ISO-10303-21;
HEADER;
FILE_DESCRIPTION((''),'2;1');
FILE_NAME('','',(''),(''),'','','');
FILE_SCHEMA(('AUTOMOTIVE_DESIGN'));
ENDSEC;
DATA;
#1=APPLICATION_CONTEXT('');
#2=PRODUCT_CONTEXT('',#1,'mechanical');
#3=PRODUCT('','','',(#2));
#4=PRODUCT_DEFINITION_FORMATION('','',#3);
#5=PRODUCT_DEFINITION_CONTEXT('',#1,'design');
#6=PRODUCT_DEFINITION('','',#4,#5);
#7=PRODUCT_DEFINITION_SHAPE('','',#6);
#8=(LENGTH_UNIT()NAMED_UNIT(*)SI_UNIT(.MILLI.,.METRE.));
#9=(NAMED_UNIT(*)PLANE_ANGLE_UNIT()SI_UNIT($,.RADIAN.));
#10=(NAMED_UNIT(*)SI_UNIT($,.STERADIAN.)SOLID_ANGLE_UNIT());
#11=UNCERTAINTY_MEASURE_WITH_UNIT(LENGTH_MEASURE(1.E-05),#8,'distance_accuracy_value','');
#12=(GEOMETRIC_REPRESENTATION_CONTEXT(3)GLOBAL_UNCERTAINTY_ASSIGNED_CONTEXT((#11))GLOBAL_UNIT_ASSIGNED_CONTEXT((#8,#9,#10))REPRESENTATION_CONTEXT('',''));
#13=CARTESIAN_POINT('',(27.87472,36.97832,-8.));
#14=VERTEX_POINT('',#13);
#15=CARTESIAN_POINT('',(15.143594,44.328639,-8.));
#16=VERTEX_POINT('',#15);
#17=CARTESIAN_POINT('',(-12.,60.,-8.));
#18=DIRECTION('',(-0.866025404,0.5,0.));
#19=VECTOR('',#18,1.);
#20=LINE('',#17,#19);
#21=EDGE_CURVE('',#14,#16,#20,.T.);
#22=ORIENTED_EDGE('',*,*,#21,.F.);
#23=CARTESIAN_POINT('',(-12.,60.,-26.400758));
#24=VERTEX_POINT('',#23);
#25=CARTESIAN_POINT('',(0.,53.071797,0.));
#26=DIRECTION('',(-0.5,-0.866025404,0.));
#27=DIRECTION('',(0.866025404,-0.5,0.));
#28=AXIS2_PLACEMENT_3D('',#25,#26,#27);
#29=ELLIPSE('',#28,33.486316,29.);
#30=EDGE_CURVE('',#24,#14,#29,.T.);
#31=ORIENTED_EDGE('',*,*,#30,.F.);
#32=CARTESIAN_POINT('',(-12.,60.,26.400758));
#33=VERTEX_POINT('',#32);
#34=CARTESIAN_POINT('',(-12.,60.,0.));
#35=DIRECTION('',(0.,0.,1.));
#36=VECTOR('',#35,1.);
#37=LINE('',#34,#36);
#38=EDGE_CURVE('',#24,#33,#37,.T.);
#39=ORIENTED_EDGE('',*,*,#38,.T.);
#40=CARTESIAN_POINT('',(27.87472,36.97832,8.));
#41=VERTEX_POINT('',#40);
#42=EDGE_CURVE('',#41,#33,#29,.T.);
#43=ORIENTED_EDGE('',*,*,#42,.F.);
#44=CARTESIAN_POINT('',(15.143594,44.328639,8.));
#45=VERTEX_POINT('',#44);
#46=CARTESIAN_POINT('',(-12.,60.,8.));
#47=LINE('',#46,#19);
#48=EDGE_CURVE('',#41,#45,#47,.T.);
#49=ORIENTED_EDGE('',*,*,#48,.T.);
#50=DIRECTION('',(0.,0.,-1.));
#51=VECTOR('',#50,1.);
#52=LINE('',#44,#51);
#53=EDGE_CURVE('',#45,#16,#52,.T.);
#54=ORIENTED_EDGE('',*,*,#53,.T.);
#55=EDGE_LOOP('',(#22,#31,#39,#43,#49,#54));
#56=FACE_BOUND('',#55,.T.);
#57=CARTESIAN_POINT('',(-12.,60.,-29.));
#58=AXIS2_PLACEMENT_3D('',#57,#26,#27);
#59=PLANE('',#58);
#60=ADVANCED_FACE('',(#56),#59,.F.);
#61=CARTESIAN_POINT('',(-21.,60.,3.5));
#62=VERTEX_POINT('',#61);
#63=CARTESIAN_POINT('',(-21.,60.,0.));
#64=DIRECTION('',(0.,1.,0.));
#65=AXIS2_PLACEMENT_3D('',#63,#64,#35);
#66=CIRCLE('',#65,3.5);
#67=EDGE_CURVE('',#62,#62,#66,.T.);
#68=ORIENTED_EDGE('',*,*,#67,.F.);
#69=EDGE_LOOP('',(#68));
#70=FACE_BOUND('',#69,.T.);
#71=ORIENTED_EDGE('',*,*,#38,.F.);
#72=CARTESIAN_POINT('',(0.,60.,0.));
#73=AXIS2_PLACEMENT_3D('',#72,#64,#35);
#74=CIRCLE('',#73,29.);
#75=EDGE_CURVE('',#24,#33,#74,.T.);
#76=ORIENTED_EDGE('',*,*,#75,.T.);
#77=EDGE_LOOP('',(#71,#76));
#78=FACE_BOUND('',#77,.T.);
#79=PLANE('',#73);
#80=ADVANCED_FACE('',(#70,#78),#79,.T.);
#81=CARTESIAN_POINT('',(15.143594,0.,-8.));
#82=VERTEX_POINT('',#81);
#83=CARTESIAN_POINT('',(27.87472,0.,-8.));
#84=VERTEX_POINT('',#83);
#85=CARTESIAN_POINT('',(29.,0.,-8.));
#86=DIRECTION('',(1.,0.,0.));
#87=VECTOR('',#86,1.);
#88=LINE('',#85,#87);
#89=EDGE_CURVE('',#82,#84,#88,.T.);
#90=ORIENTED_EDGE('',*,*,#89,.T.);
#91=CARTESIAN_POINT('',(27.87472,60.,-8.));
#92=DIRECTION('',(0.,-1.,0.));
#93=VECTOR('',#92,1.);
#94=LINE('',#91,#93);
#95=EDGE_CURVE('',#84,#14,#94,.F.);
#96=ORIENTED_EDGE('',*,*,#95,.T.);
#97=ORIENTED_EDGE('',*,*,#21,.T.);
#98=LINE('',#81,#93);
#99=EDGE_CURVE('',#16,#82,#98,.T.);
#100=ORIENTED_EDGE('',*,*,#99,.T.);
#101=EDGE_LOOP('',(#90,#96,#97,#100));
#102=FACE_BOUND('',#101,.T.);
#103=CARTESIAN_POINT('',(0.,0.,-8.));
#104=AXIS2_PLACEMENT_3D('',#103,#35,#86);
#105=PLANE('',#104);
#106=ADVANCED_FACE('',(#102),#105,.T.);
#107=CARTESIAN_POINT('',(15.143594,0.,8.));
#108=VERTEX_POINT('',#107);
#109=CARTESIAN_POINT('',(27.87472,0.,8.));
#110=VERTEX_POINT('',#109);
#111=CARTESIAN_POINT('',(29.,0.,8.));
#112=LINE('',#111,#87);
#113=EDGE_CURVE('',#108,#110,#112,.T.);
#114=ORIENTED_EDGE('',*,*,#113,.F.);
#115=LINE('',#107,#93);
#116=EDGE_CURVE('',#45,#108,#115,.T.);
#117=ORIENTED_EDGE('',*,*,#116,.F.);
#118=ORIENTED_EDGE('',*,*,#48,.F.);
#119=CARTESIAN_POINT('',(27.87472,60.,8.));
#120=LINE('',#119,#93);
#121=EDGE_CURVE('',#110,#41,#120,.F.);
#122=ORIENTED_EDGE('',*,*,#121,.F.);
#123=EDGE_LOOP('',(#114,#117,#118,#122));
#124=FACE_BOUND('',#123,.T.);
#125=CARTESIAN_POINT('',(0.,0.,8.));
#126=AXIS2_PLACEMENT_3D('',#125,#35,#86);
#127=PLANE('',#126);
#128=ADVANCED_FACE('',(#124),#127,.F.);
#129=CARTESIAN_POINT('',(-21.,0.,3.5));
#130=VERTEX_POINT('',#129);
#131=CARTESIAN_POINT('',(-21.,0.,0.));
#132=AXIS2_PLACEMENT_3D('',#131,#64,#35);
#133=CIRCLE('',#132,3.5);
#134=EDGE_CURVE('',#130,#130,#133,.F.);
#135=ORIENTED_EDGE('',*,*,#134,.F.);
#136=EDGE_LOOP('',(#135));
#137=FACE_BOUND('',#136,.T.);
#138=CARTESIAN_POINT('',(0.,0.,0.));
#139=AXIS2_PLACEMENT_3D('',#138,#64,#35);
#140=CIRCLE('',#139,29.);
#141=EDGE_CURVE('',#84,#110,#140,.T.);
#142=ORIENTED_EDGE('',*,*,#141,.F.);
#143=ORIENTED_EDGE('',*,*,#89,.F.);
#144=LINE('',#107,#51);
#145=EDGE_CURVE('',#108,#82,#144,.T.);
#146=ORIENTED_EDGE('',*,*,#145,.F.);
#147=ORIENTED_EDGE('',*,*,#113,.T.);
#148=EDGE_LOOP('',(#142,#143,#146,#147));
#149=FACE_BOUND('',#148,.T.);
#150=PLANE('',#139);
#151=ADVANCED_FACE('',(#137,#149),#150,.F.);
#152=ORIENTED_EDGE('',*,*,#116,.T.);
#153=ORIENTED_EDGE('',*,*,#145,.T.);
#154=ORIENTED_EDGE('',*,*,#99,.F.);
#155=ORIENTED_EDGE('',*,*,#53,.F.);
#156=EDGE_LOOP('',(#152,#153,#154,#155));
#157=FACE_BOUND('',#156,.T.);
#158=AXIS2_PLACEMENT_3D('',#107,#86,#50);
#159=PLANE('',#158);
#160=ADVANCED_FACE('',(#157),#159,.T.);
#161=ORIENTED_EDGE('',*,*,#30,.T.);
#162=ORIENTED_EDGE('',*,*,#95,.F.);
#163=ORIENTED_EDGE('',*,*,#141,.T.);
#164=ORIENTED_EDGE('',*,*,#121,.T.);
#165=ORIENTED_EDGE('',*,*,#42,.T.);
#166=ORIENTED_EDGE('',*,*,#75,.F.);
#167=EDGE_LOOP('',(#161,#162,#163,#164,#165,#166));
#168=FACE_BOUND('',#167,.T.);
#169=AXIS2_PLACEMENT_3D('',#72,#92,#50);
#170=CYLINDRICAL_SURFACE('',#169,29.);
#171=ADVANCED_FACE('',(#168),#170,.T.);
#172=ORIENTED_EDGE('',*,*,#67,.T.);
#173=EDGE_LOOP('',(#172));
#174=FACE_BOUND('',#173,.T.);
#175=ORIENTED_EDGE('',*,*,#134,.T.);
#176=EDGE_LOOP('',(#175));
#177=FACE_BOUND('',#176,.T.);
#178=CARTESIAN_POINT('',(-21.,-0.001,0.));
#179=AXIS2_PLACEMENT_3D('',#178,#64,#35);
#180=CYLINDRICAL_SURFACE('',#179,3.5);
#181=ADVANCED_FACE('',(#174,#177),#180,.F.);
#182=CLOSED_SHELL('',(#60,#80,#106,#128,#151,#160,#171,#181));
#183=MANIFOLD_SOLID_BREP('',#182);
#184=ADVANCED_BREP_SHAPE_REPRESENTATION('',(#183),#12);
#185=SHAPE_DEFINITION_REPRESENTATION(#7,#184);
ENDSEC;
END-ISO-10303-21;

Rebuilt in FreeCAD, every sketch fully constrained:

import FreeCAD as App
import Part
import Sketcher

V = App.Vector
Q = App.Units.Quantity

doc = App.newDocument("Part")
body = doc.addObject("PartDesign::Body", "Body")

# Sketch on XZ plane
sketch1 = doc.addObject("Sketcher::SketchObject", "Sketch")
body.addObject(sketch1)
sketch1.AttachmentSupport = (doc.XZ_Plane, [""])
sketch1.MapMode = "FlatFace"
sketch1.addGeometry(Part.Circle(V(0, 0, 0), V(0, 0, 1), 29), False)
sketch1.addConstraint([
    Sketcher.Constraint("Coincident", 0, 3, -1, 1),
    Sketcher.Constraint("Diameter", 0, 58.0),
])
pad1 = doc.addObject("PartDesign::Pad", "Pad")
body.addObject(pad1)
pad1.Profile = sketch1
pad1.Length = 60
pad1.Reversed = True

# Sketch on XY plane
sketch2 = doc.addObject("Sketcher::SketchObject", "Sketch001")
body.addObject(sketch2)
sketch2.AttachmentSupport = (doc.XY_Plane, [""])
sketch2.MapMode = "FlatFace"
sketch2.addGeometry([
    Part.LineSegment(V(-12, 60, 0), V(29, 36, 0)),
    Part.LineSegment(V(29, 36, 0), V(29, 60, 0)),
    Part.LineSegment(V(29, 60, 0), V(-12, 60, 0)),
], False)
sketch2.addConstraint([
    Sketcher.Constraint("Coincident", 0, 2, 1, 1),
    Sketcher.Constraint("Coincident", 1, 2, 2, 1),
    Sketcher.Constraint("Coincident", 2, 2, 0, 1),
    Sketcher.Constraint("Vertical", 1),
    Sketcher.Constraint("Horizontal", 2),
    Sketcher.Constraint("DistanceX", 2, 2, 2, 1, 41.0),
    Sketcher.Constraint("Angle", 0, Q("-30 deg")),
    Sketcher.Constraint("DistanceX", -1, 1, 0, 2, 29.0),
    Sketcher.Constraint("DistanceY", -1, 1, 1, 2, 60.0),
])
pocket1 = doc.addObject("PartDesign::Pocket", "Pocket")
body.addObject(pocket1)
pocket1.Profile = sketch2
pocket1.Type = "ThroughAll"
pocket1.Midplane = True

# Sketch on XY plane
sketch3 = doc.addObject("Sketcher::SketchObject", "Sketch002")
body.addObject(sketch3)
sketch3.AttachmentSupport = (doc.XY_Plane, [""])
sketch3.MapMode = "FlatFace"
sketch3.addGeometry([
    Part.LineSegment(V(29, 36, 0), V(15, 44, 0)),
    Part.LineSegment(V(15, 44, 0), V(15, 0, 0)),
    Part.LineSegment(V(15, 0, 0), V(29, 0, 0)),
    Part.LineSegment(V(29, 0, 0), V(29, 36, 0)),
], False)
sketch3.addConstraint([
    Sketcher.Constraint("Coincident", 0, 2, 1, 1),
    Sketcher.Constraint("Coincident", 1, 2, 2, 1),
    Sketcher.Constraint("Coincident", 2, 2, 3, 1),
    Sketcher.Constraint("Coincident", 3, 2, 0, 1),
    Sketcher.Constraint("Vertical", 1),
    Sketcher.Constraint("Horizontal", 2),
    Sketcher.Constraint("Vertical", 3),
    Sketcher.Constraint("PointOnObject", 1, 2, -1),
    Sketcher.Constraint("Angle", 0, Q("150 deg")),
    Sketcher.Constraint("Distance", 0, 16.0),
    Sketcher.Constraint("DistanceX", -1, 1, 2, 2, 29.0),
    Sketcher.Constraint("DistanceY", 1, 2, 1, 1, 44.328639),
])
pocket2 = doc.addObject("PartDesign::Pocket", "Pocket001")
body.addObject(pocket2)
pocket2.Profile = sketch3
pocket2.Type = "TwoLengths"
pocket2.Length = 8
pocket2.Length2 = 8
pocket2.Reversed = True

# Sketch on XZ plane
sketch4 = doc.addObject("Sketcher::SketchObject", "Sketch003")
body.addObject(sketch4)
sketch4.AttachmentSupport = (doc.XZ_Plane, [""])
sketch4.MapMode = "FlatFace"
sketch4.AttachmentOffset = App.Placement(V(0, 0, -60), App.Rotation())
sketch4.addGeometry(Part.Circle(V(-21, 0, 0), V(0, 0, 1), 3.5), False)
sketch4.addConstraint([
    Sketcher.Constraint("PointOnObject", 0, 3, -1),
    Sketcher.Constraint("Diameter", 0, 7.0),
    Sketcher.Constraint("DistanceX", 0, 3, -1, 1, 21.0),
])
pocket3 = doc.addObject("PartDesign::Pocket", "Pocket002")
body.addObject(pocket3)
pocket3.Profile = sketch4
pocket3.Type = "UpToFirst"
pocket3.Reversed = True

doc.recompute()
